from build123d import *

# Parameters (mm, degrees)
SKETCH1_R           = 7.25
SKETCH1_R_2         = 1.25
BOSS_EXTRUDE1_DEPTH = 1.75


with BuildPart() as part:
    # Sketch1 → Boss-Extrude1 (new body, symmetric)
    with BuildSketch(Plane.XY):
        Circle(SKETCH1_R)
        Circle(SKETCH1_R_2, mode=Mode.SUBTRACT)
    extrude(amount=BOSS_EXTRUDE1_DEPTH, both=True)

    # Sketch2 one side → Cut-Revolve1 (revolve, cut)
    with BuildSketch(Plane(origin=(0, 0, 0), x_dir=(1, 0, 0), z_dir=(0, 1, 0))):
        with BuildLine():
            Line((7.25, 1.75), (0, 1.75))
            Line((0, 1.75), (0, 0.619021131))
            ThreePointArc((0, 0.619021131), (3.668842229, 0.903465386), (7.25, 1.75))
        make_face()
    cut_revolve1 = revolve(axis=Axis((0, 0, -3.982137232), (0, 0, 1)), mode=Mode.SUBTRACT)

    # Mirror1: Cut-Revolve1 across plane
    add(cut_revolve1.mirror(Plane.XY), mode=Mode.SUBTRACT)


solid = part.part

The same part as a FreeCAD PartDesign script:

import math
import FreeCAD as App
import Part
import Sketcher
Q = App.Units.Quantity

doc = App.newDocument("Part")
body = doc.addObject("PartDesign::Body", "Body")

sketch1 = body.newObject("Sketcher::SketchObject", "Sketch")
sketch1.AttachmentSupport = (doc.getObject("XY_Plane"), [""])
sketch1.MapMode = "FlatFace"
sketch1.addGeometry([
    Part.Circle(App.Vector(0, 0, 0), App.Vector(0, 0, 1), 7.2),
    Part.Circle(App.Vector(0, 0, 0), App.Vector(0, 0, 1), 1.2),
], False)
sketch1.addConstraint([
    Sketcher.Constraint("Coincident", 0, 3, -1, 1),
    Sketcher.Constraint("Coincident", 1, 3, -1, 1),
    Sketcher.Constraint("Diameter", 0, Q("14.5 mm")),
    Sketcher.Constraint("Diameter", 1, Q("2.5 mm")),
])
pad1 = body.newObject("PartDesign::Pad", "Pad")
pad1.Profile = sketch1
pad1.Length = 3.5
pad1.Midplane = True

sketch2 = body.newObject("Sketcher::SketchObject", "Sketch001")
sketch2.AttachmentSupport = (doc.getObject("XZ_Plane"), [""])
sketch2.MapMode = "FlatFace"
sketch2.addGeometry([
    Part.LineSegment(App.Vector(7.2, -1.8, 0), App.Vector(0, -1.8, 0)),
    Part.LineSegment(App.Vector(0, -1.8, 0), App.Vector(0, -0.6, 0)),
    Part.ArcOfCircle(Part.Circle(App.Vector(0, -24.4, 0), App.Vector(0, 0, 1), 23.8), math.radians(72.27), math.radians(90)),
], False)
sketch2.addConstraint([
    Sketcher.Constraint("Coincident", 0, 2, 1, 1),
    Sketcher.Constraint("Coincident", 1, 2, 2, 2),
    Sketcher.Constraint("Coincident", 2, 1, 0, 1),
    Sketcher.Constraint("Horizontal", 0),
    Sketcher.Constraint("Vertical", 1),
    Sketcher.Constraint("PointOnObject", 2, 3, -2),
    Sketcher.Constraint("PointOnObject", 0, 2, -2),
    Sketcher.Constraint("DistanceX", 0, 2, 0, 1, Q("7.25 mm")),
    Sketcher.Constraint("DistanceY", 0, 2, -1, 1, Q("1.75 mm")),
    Sketcher.Constraint("Radius", 2, Q("23.803103 mm")),
])
groove = body.newObject("PartDesign::Groove", "Groove")
groove.Profile = sketch2
groove.ReferenceAxis = (sketch2, ["V_Axis"])
groove.Angle = 360
doc.recompute()

mirrored = body.newObject("PartDesign::Mirrored", "Mirrored")
mirrored.Originals = [groove]
mirrored.MirrorPlane = (doc.getObject("XY_Plane"), [""])
body.Tip = mirrored

doc.recompute()
